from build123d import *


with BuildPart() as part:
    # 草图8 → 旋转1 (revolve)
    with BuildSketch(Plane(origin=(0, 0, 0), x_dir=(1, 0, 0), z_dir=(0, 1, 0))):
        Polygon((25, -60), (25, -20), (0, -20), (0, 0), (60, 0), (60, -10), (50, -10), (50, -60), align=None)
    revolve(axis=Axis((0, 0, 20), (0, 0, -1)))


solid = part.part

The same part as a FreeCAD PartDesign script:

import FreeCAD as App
import Part
import Sketcher
from FreeCAD import Vector
Q = App.Units.Quantity


def add_polygon(sketch, points):
    """Adds a closed chain of lines whose ends are joined by coincident constraints."""
    first, n = sketch.GeometryCount, len(points)
    for a, b in zip(points, points[1:] + points[:1]):
        sketch.addGeometry(Part.LineSegment(App.Vector(*a, 0), App.Vector(*b, 0)), False)
    for i in range(n):
        sketch.addConstraint(Sketcher.Constraint("Coincident", first + i, 2, first + (i + 1) % n, 1))

doc = App.newDocument("Part")
body = doc.addObject("PartDesign::Body", "Body")

# Sketch on XZ plane
sketch1 = body.newObject("Sketcher::SketchObject", "Sketch")
sketch1.AttachmentSupport = (doc.getObject("XZ_Plane"), [""])
sketch1.MapMode = "FlatFace"
add_polygon(sketch1, [(25, 20), (25, 60), (50, 60), (50, 10), (60, 10), (60, 0), (0, 0), (0, 20)])  # lines 0-7
sketch1.addConstraint([
    Sketcher.Constraint("Vertical", 0),
    Sketcher.Constraint("Horizontal", 1),
    Sketcher.Constraint("Vertical", 2),
    Sketcher.Constraint("Horizontal", 3),
    Sketcher.Constraint("Vertical", 4),
    Sketcher.Constraint("Horizontal", 5),
    Sketcher.Constraint("Vertical", 6),
    Sketcher.Constraint("Horizontal", 7),
    Sketcher.Constraint("Coincident", 5, 2, -1, 1),
    Sketcher.Constraint("Equal", 1, 7),
    Sketcher.Constraint("Equal", 3, 4),
    Sketcher.Constraint("DistanceX", 1, 1, 1, 2, Q("25 mm")),
    Sketcher.Constraint("DistanceX", 3, 1, 3, 2, Q("10 mm")),
    Sketcher.Constraint("DistanceY", 0, 1, 0, 2, Q("40 mm")),
    Sketcher.Constraint("DistanceY", 2, 2, 2, 1, Q("50 mm")),
])
revolution = body.newObject("PartDesign::Revolution", "Revolution")
revolution.Profile = sketch1
revolution.ReferenceAxis = (sketch1, ["V_Axis"])
revolution.Angle = 360

doc.recompute()
